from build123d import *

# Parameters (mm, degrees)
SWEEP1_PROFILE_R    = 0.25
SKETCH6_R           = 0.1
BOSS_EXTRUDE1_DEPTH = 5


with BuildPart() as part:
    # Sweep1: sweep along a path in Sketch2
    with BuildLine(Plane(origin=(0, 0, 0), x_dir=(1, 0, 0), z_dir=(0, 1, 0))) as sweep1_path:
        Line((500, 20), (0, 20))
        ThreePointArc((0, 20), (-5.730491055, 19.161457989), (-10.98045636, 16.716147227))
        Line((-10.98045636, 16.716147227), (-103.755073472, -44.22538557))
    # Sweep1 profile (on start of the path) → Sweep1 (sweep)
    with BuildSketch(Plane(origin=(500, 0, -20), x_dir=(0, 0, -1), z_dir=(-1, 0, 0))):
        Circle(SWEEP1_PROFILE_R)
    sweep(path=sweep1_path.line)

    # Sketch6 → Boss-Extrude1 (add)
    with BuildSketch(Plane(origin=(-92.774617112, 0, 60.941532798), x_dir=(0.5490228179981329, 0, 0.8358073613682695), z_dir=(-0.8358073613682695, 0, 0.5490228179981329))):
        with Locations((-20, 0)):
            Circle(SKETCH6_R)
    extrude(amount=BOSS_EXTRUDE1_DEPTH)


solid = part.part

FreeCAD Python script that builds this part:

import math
import FreeCAD as App
import Part
import Sketcher
from FreeCAD import Vector
Q = App.Units.Quantity

doc = App.newDocument("Part")
body = doc.addObject("PartDesign::Body", "Body")

sketch1 = body.newObject("Sketcher::SketchObject", "Sketch")
sketch1.AttachmentSupport = (doc.getObject("YZ_Plane"), [""])
sketch1.MapMode = "FlatFace"
sketch1.AttachmentOffset = App.Placement(Vector(0, 0, 500), App.Rotation())
sketch1.addGeometry(Part.Circle(Vector(0, -20, 0), Vector(0, 0, 1), 0.25), False)
sketch1.addConstraint(Sketcher.Constraint("PointOnObject", 0, 3, -2))
sketch1.addConstraint(Sketcher.Constraint("Diameter", 0, Q("0.5 mm")))
sketch1.addConstraint(Sketcher.Constraint("DistanceY", 0, 3, -1, 1, Q("20 mm")))

sketch2 = body.newObject("Sketcher::SketchObject", "Sketch001")
sketch2.AttachmentSupport = (doc.getObject("XZ_Plane"), [""])
sketch2.MapMode = "FlatFace"
sketch2.addGeometry(Part.LineSegment(Vector(500, -20, 0), Vector(0, -20, 0)), False)
sketch2.addGeometry(Part.ArcOfCircle(Part.Circle(Vector(0, 0, 0), Vector(0, 0, 1), 20), math.radians(-123), math.radians(-90)), False)
sketch2.addGeometry(Part.LineSegment(Vector(-11, -17, 0), Vector(-104, 44, 0)), False)
sketch2.addConstraint(Sketcher.Constraint("Tangent", 0, 2, 1, 2))
sketch2.addConstraint(Sketcher.Constraint("Tangent", 1, 1, 2, 1))
sketch2.addConstraint(Sketcher.Constraint("Horizontal", 0))
sketch2.addConstraint(Sketcher.Constraint("Coincident", 1, 3, -1, 1))
sketch2.addConstraint(Sketcher.Constraint("Radius", 1, Q("20 mm")))
sketch2.addConstraint(Sketcher.Constraint("DistanceX", 0, 2, 0, 1, Q("500 mm")))
sketch2.addConstraint(Sketcher.Constraint("Distance", 2, Q("111 mm")))
sketch2.addConstraint(Sketcher.Constraint("Angle", 2, Q("146.7 deg")))
doc.recompute()

additivepipe = body.newObject("PartDesign::AdditivePipe", "AdditivePipe")
additivepipe.Profile = sketch1
additivepipe.Spine = (sketch2, ["Edge1", "Edge2", "Edge3"])

sketch3 = body.newObject("Sketcher::SketchObject", "Sketch002")
sketch3.Placement = App.Placement(Vector(-92.774617, 0, 60.941533), App.Rotation(Vector(0.549022818, 0, 0.835807361), Vector(0, 0.999999999, 0), Vector(-0.835807361, 0, 0.549022818), "ZXY"))
sketch3.addGeometry(Part.Circle(Vector(-20, 0, 0), Vector(0, 0, 1), 0.1), False)
sketch3.addConstraint(Sketcher.Constraint("PointOnObject", 0, 3, -1))
sketch3.addConstraint(Sketcher.Constraint("Diameter", 0, Q("0.2 mm")))
sketch3.addConstraint(Sketcher.Constraint("DistanceX", 0, 3, -1, 1, Q("20 mm")))
pad1 = body.newObject("PartDesign::Pad", "Pad")
pad1.Profile = sketch3
pad1.Length = 5

doc.recompute()
